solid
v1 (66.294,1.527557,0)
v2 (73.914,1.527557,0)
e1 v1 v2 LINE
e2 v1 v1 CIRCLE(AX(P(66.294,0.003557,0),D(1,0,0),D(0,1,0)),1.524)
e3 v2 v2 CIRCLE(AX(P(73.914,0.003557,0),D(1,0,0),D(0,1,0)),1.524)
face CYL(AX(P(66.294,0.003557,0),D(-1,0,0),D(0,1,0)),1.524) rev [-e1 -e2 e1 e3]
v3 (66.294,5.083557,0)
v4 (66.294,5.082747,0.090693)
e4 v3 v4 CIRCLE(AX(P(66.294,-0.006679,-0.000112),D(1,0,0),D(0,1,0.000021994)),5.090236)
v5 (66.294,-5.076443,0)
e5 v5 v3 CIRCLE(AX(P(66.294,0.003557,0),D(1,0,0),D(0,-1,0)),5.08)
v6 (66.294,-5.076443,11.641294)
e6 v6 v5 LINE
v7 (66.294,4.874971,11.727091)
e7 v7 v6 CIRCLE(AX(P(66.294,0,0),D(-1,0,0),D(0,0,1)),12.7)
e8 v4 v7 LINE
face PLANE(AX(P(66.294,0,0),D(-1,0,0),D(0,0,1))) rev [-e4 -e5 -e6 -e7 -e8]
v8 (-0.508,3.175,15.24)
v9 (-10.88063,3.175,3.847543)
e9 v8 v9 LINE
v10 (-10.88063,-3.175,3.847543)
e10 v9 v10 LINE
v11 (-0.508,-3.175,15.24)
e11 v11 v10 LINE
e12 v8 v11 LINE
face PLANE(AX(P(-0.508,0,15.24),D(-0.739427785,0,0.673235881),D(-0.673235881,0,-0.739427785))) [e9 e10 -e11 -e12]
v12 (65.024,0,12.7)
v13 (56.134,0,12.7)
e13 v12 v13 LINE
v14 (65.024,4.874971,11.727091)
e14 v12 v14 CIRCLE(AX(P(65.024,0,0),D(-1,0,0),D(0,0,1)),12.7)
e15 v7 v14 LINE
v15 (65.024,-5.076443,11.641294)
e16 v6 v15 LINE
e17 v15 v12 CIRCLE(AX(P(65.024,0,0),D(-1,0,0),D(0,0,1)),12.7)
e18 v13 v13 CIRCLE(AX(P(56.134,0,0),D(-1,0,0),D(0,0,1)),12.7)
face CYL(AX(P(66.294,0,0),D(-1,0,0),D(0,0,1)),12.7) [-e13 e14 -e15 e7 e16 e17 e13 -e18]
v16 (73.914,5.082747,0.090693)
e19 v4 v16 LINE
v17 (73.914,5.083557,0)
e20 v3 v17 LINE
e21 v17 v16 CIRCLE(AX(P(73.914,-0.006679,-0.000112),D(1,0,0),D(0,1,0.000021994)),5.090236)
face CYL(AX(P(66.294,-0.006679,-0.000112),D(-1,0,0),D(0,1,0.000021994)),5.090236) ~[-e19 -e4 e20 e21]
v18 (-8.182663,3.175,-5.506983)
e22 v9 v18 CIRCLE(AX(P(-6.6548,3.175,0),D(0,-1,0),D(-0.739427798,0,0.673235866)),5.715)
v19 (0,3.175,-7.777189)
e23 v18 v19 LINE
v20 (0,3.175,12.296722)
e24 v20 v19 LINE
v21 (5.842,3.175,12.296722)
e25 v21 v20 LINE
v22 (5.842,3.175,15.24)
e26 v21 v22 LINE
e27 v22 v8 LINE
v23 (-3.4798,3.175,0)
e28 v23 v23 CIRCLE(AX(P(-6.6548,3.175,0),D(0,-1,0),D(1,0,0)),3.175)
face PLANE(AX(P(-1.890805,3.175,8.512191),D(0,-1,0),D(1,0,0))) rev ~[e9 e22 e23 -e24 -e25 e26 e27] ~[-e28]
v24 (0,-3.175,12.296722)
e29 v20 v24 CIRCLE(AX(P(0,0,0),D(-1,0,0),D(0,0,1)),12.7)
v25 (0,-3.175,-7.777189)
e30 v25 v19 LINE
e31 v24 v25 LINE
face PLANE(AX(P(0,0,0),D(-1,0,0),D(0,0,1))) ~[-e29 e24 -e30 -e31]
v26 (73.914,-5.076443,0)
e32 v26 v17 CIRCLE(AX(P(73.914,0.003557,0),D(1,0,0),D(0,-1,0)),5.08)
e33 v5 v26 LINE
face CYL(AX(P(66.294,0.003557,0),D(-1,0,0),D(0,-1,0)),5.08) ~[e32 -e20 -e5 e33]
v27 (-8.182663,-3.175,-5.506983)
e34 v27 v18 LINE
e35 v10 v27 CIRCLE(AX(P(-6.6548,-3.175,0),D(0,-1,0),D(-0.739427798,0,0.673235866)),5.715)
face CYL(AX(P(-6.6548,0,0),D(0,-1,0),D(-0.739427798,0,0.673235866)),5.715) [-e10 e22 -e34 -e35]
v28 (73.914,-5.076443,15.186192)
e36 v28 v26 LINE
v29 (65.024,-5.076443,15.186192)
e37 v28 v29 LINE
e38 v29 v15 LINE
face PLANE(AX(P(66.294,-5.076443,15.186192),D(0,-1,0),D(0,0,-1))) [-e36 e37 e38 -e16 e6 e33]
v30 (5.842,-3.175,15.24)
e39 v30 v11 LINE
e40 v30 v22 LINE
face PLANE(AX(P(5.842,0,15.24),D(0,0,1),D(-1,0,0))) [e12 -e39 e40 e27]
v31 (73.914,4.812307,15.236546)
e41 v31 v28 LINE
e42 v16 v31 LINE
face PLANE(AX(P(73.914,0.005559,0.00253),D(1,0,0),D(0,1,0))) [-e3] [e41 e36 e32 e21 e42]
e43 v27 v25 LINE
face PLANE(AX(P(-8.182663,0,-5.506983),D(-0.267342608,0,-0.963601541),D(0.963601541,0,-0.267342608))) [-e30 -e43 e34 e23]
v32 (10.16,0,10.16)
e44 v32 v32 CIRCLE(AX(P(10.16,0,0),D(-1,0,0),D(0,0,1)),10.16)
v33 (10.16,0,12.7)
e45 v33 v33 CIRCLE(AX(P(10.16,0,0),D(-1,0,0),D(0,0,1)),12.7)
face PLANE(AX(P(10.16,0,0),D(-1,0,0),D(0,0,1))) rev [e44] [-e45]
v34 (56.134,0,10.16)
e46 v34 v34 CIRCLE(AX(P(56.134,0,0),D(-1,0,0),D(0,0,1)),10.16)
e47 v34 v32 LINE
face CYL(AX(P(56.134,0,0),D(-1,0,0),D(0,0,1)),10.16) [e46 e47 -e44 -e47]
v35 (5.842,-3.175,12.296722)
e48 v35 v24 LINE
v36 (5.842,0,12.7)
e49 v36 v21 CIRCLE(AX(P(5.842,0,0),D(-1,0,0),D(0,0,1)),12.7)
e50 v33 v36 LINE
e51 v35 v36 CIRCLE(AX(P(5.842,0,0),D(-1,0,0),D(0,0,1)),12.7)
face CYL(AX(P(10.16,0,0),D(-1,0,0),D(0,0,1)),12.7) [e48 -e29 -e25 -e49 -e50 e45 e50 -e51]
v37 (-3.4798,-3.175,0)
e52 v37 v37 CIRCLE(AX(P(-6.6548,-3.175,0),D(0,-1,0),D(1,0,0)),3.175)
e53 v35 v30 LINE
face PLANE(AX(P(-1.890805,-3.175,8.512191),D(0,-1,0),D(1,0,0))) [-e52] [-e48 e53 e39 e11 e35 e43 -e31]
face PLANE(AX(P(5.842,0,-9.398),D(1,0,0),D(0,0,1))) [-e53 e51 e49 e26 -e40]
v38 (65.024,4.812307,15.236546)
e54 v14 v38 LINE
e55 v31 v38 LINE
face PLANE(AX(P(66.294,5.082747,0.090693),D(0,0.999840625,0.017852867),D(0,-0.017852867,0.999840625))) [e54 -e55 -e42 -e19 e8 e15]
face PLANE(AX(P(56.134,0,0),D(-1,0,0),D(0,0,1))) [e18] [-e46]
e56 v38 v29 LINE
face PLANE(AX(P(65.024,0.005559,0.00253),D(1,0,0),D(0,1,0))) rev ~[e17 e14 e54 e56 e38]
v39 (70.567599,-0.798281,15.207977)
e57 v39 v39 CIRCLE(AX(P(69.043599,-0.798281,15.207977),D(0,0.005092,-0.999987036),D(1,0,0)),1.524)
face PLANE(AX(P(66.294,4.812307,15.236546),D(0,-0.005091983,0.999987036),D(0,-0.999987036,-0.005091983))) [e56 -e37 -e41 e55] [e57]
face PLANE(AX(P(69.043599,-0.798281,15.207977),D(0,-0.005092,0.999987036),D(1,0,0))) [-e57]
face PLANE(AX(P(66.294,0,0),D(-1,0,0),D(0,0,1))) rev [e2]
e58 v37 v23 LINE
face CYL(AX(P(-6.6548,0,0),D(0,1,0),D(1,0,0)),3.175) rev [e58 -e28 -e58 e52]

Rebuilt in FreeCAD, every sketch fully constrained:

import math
import FreeCAD as App
import Part
import Sketcher
Q = App.Units.Quantity


def add_polygon(sketch, points):
    """Adds a closed chain of lines whose ends are joined by coincident constraints."""
    first, n = sketch.GeometryCount, len(points)
    for a, b in zip(points, points[1:] + points[:1]):
        sketch.addGeometry(Part.LineSegment(App.Vector(*a, 0), App.Vector(*b, 0)), False)
    for i in range(n):
        sketch.addConstraint(Sketcher.Constraint("Coincident", first + i, 2, first + (i + 1) % n, 1))

doc = App.newDocument("Part")
params = doc.addObject("Spreadsheet::Sheet", "Params")
for row, (alias, value) in enumerate([
    ("sketch1_width", "0.4 in"),
    ("sketch1_height", "0.5 in"),
    ("sketch1_height2", "0.1 in"),
    ("sketch1_width2", "1.81 in"),
    ("revolution_angle", "360 deg"),
    ("sketch2_diameter", "0.25 in"),
    ("sketch2_radius", "0.225 in"),
    ("sketch2_width", "0.25 in"),
    ("sketch2_height", "0.97 in"),
    ("pad1_length", "0.25 in"),
    ("sketch3_radius", "0.2 in"),
    ("sketch3_diameter", "0.12 in"),
    ("pad2_length", "0.3 in"),
    ("pad2_length2", "0.05 in"),
    ("sketch4_diameter", "0.12 in"),
    ("pad3_length", "9.69487 mm"),
    ("sketch5_diameter", "0.12 in"),
    ("pad4_length", "6.87652 mm"),
], start=1):
    params.set(f"A{row}", alias)
    params.set(f"B{row}", "=" + value)
    params.setAlias(f"B{row}", alias)

body = doc.addObject("PartDesign::Body", "Body")

# Sketch on XZ plane
sketch1 = body.newObject("Sketcher::SketchObject", "Sketch")
sketch1.AttachmentSupport = (doc.getObject("XZ_Plane"), [""])
sketch1.MapMode = "FlatFace"
add_polygon(sketch1, [(66.294, 0), (66.294, 12.7), (56.134, 12.7), (56.134, 10.16), (10.16, 10.16), (10.16, 12.7), (0, 12.7), (0, 0)])  # lines 0-7
sketch1.addConstraint(Sketcher.Constraint("Vertical", 0))
sketch1.addConstraint(Sketcher.Constraint("Horizontal", 1))
sketch1.addConstraint(Sketcher.Constraint("Vertical", 2))
sketch1.addConstraint(Sketcher.Constraint("Horizontal", 3))
sketch1.addConstraint(Sketcher.Constraint("Vertical", 4))
sketch1.addConstraint(Sketcher.Constraint("Horizontal", 5))
sketch1.addConstraint(Sketcher.Constraint("Vertical", 6))
sketch1.addConstraint(Sketcher.Constraint("Horizontal", 7))
sketch1.addConstraint(Sketcher.Constraint("Coincident", 6, 2, -1, 1))
sketch1.addConstraint(Sketcher.Constraint("Horizontal", 1, 2, 4, 2))
sketch1.addConstraint(Sketcher.Constraint("Equal", 1, 5))
sketch1.addConstraint(Sketcher.Constraint("DistanceX", 1, 2, 1, 1, Q("0.4 in")))
sketch1.addConstraint(Sketcher.Constraint("DistanceY", 0, 1, 0, 2, Q("0.5 in")))
sketch1.addConstraint(Sketcher.Constraint("DistanceY", 2, 2, 2, 1, Q("0.1 in")))
sketch1.addConstraint(Sketcher.Constraint("DistanceX", 3, 2, 3, 1, Q("1.81 in")))
sketch1.setExpression("Constraints[19]", "Params.sketch1_width")
sketch1.setExpression("Constraints[20]", "Params.sketch1_height")
sketch1.setExpression("Constraints[21]", "Params.sketch1_height2")
sketch1.setExpression("Constraints[22]", "Params.sketch1_width2")
revolution = body.newObject("PartDesign::Revolution", "Revolution")
revolution.Profile = sketch1
revolution.ReferenceAxis = (sketch1, ["H_Axis"])
revolution.setExpression("Angle", "Params.revolution_angle")

# Sketch on XZ plane
sketch2 = body.newObject("Sketcher::SketchObject", "Sketch001")
sketch2.AttachmentSupport = (doc.getObject("XZ_Plane"), [""])
sketch2.MapMode = "FlatFace"
sketch2.addGeometry(Part.LineSegment(App.Vector(5.842, 15.24, 0), App.Vector(-0.508, 15.24, 0)), False)
sketch2.addGeometry(Part.LineSegment(App.Vector(-0.508, 15.24, 0), App.Vector(-10.88063, 3.847543, 0)), False)
sketch2.addGeometry(Part.ArcOfCircle(Part.Circle(App.Vector(-6.6548, 0, 0), App.Vector(0, 0, 1), 5.715), math.radians(137.682696), math.radians(254.493803)), False)
sketch2.addGeometry(Part.LineSegment(App.Vector(-8.182663, -5.506983, 0), App.Vector(5.842, -9.398, 0)), False)
sketch2.addGeometry(Part.LineSegment(App.Vector(5.842, -9.398, 0), App.Vector(5.842, 15.24, 0)), False)
sketch2.addGeometry(Part.Circle(App.Vector(-6.6548, 0, 0), App.Vector(0, 0, 1), 3.175), False)
sketch2.addConstraint(Sketcher.Constraint("Coincident", 0, 2, 1, 1))
sketch2.addConstraint(Sketcher.Constraint("Tangent", 1, 2, 2, 1))
sketch2.addConstraint(Sketcher.Constraint("Tangent", 2, 2, 3, 1))
sketch2.addConstraint(Sketcher.Constraint("Coincident", 3, 2, 4, 1))
sketch2.addConstraint(Sketcher.Constraint("Coincident", 4, 2, 0, 1))
sketch2.addConstraint(Sketcher.Constraint("Horizontal", 0))
sketch2.addConstraint(Sketcher.Constraint("Vertical", 4))
sketch2.addConstraint(Sketcher.Constraint("Coincident", 5, 3, 2, 3))
sketch2.addConstraint(Sketcher.Constraint("PointOnObject", 2, 3, -1))
sketch2.addConstraint(Sketcher.Constraint("Diameter", 5, Q("0.25 in")))
sketch2.addConstraint(Sketcher.Constraint("Radius", 2, Q("0.225 in")))
sketch2.addConstraint(Sketcher.Constraint("DistanceX", 0, 2, 0, 1, Q("0.25 in")))
sketch2.addConstraint(Sketcher.Constraint("DistanceY", 4, 1, 4, 2, Q("0.97 in")))
sketch2.addConstraint(Sketcher.Constraint("DistanceY", -1, 1, 0, 2, Q("0.6 in")))
sketch2.addConstraint(Sketcher.Constraint("DistanceX", 0, 2, -1, 1, Q("0.02 in")))
sketch2.addConstraint(Sketcher.Constraint("DistanceX", 2, 3, -1, 1, Q("0.262 in")))
sketch2.setExpression("Constraints[9]", "Params.sketch2_diameter")
sketch2.setExpression("Constraints[10]", "Params.sketch2_radius")
sketch2.setExpression("Constraints[11]", "Params.sketch2_width")
sketch2.setExpression("Constraints[12]", "Params.sketch2_height")
pad1 = body.newObject("PartDesign::Pad", "Pad")
pad1.Profile = sketch2
pad1.setExpression("Length", "Params.pad1_length")
pad1.Midplane = True

# Sketch on YZ plane
sketch3 = body.newObject("Sketcher::SketchObject", "Sketch002")
sketch3.AttachmentSupport = (doc.getObject("YZ_Plane"), [""])
sketch3.MapMode = "FlatFace"
sketch3.AttachmentOffset = App.Placement(App.Vector(0, 0, 2.61 * 25.4), App.Rotation())
sketch3.addGeometry(Part.ArcOfCircle(Part.Circle(App.Vector(0.003557, 0, 0), App.Vector(0, 0, 1), 5.08), math.radians(180), math.radians(360)), False)
sketch3.addGeometry(Part.ArcOfCircle(Part.Circle(App.Vector(-0.006679, -0.000112, 0), App.Vector(0, 0, 1), 5.090236), math.radians(0.00126), math.radians(1.022156)), False)
sketch3.addGeometry(Part.LineSegment(App.Vector(5.082747, 0.090693, 0), App.Vector(4.812307, 15.236546, 0)), False)
sketch3.addGeometry(Part.LineSegment(App.Vector(4.812307, 15.236546, 0), App.Vector(-5.076443, 15.186192, 0)), False)
sketch3.addGeometry(Part.LineSegment(App.Vector(-5.076443, 15.186192, 0), App.Vector(-5.076443, 0, 0)), False)
sketch3.addGeometry(Part.Circle(App.Vector(0.003557, 0, 0), App.Vector(0, 0, 1), 1.524), False)
sketch3.addConstraint(Sketcher.Constraint("Coincident", 0, 2, 1, 1))
sketch3.addConstraint(Sketcher.Constraint("Coincident", 1, 2, 2, 1))
sketch3.addConstraint(Sketcher.Constraint("Coincident", 2, 2, 3, 1))
sketch3.addConstraint(Sketcher.Constraint("Coincident", 3, 2, 4, 1))
sketch3.addConstraint(Sketcher.Constraint("Tangent", 4, 2, 0, 1))
sketch3.addConstraint(Sketcher.Constraint("Vertical", 4))
sketch3.addConstraint(Sketcher.Constraint("Coincident", 5, 3, 0, 3))
sketch3.addConstraint(Sketcher.Constraint("PointOnObject", 0, 3, -1))
sketch3.addConstraint(Sketcher.Constraint("PointOnObject", 0, 2, -1))
sketch3.addConstraint(Sketcher.Constraint("Radius", 0, Q("0.2 in")))
sketch3.addConstraint(Sketcher.Constraint("Diameter", 5, Q("0.12 in")))
sketch3.addConstraint(Sketcher.Constraint("Radius", 1, Q("5.090236 mm")))
sketch3.addConstraint(Sketcher.Constraint("DistanceY", 1, 2, 3, 2, Q("15.095499 mm")))
sketch3.addConstraint(Sketcher.Constraint("Distance", 3, Q("9.888878 mm")))
sketch3.addConstraint(Sketcher.Constraint("DistanceY", 4, 2, 4, 1, Q("15.186192 mm")))
sketch3.addConstraint(Sketcher.Constraint("DistanceX", 1, 3, -1, 1, Q("0.006679 mm")))
sketch3.addConstraint(Sketcher.Constraint("DistanceY", 1, 3, -1, 1, Q("0.000112 mm")))
sketch3.addConstraint(Sketcher.Constraint("DistanceX", 2, 2, 1, 2, Q("0.27044 mm")))
sketch3.setExpression("Constraints[9]", "Params.sketch3_radius")
sketch3.setExpression("Constraints[10]", "Params.sketch3_diameter")
pad2 = body.newObject("PartDesign::Pad", "Pad001")
pad2.Profile = sketch3
pad2.Type = "TwoLengths"
pad2.setExpression("Length", "Params.pad2_length")
pad2.setExpression("Length2", "Params.pad2_length2")

# Sketch on an angled plane
sketch4 = body.newObject("Sketcher::SketchObject", "Sketch003")
sketch4.Placement = App.Placement(App.Vector(0, -0.077459, 15.211647), App.Rotation(App.Vector(1, 0, 0), App.Vector(0, 0.999987036, 0.005092), App.Vector(0, -0.005092, 0.999987036), "ZXY"))
sketch4.addGeometry(Part.Circle(App.Vector(69.043599, -0.720831, 0), App.Vector(0, 0, 1), 1.524), False)
sketch4.addConstraint(Sketcher.Constraint("Diameter", 0, Q("0.12 in")))
sketch4.addConstraint(Sketcher.Constraint("DistanceX", -1, 1, 0, 3, Q("69.043599 mm")))
sketch4.addConstraint(Sketcher.Constraint("DistanceY", 0, 3, -1, 1, Q("0.720831 mm")))
sketch4.setExpression("Constraints[0]", "Params.sketch4_diameter")
pad3 = body.newObject("PartDesign::Pad", "Pad002")
pad3.Profile = sketch4
pad3.setExpression("Length", "Params.pad3_length")
pad3.Reversed = True

# Sketch on an angled plane
sketch5 = body.newObject("Sketcher::SketchObject", "Sketch004")
sketch5.Placement = App.Placement(App.Vector(0, -0.077459, 15.211647), App.Rotation(App.Vector(1, 0, 0), App.Vector(0, 0.999987036, 0.005092), App.Vector(0, -0.005092, 0.999987036), "ZXY"))
sketch5.addGeometry(Part.Circle(App.Vector(69.499604, 0.040541, 0), App.Vector(0, 0, 1), 1.524), False)
sketch5.addConstraint(Sketcher.Constraint("Diameter", 0, Q("0.12 in")))
sketch5.addConstraint(Sketcher.Constraint("DistanceY", -1, 1, 0, 3, Q("0.040541 mm")))
sketch5.addConstraint(Sketcher.Constraint("DistanceX", -1, 1, 0, 3, Q("69.499604 mm")))
sketch5.setExpression("Constraints[0]", "Params.sketch5_diameter")
pad4 = body.newObject("PartDesign::Pad", "Pad003")
pad4.Profile = sketch5
pad4.setExpression("Length", "Params.pad4_length")
pad4.Reversed = True

doc.recompute()
